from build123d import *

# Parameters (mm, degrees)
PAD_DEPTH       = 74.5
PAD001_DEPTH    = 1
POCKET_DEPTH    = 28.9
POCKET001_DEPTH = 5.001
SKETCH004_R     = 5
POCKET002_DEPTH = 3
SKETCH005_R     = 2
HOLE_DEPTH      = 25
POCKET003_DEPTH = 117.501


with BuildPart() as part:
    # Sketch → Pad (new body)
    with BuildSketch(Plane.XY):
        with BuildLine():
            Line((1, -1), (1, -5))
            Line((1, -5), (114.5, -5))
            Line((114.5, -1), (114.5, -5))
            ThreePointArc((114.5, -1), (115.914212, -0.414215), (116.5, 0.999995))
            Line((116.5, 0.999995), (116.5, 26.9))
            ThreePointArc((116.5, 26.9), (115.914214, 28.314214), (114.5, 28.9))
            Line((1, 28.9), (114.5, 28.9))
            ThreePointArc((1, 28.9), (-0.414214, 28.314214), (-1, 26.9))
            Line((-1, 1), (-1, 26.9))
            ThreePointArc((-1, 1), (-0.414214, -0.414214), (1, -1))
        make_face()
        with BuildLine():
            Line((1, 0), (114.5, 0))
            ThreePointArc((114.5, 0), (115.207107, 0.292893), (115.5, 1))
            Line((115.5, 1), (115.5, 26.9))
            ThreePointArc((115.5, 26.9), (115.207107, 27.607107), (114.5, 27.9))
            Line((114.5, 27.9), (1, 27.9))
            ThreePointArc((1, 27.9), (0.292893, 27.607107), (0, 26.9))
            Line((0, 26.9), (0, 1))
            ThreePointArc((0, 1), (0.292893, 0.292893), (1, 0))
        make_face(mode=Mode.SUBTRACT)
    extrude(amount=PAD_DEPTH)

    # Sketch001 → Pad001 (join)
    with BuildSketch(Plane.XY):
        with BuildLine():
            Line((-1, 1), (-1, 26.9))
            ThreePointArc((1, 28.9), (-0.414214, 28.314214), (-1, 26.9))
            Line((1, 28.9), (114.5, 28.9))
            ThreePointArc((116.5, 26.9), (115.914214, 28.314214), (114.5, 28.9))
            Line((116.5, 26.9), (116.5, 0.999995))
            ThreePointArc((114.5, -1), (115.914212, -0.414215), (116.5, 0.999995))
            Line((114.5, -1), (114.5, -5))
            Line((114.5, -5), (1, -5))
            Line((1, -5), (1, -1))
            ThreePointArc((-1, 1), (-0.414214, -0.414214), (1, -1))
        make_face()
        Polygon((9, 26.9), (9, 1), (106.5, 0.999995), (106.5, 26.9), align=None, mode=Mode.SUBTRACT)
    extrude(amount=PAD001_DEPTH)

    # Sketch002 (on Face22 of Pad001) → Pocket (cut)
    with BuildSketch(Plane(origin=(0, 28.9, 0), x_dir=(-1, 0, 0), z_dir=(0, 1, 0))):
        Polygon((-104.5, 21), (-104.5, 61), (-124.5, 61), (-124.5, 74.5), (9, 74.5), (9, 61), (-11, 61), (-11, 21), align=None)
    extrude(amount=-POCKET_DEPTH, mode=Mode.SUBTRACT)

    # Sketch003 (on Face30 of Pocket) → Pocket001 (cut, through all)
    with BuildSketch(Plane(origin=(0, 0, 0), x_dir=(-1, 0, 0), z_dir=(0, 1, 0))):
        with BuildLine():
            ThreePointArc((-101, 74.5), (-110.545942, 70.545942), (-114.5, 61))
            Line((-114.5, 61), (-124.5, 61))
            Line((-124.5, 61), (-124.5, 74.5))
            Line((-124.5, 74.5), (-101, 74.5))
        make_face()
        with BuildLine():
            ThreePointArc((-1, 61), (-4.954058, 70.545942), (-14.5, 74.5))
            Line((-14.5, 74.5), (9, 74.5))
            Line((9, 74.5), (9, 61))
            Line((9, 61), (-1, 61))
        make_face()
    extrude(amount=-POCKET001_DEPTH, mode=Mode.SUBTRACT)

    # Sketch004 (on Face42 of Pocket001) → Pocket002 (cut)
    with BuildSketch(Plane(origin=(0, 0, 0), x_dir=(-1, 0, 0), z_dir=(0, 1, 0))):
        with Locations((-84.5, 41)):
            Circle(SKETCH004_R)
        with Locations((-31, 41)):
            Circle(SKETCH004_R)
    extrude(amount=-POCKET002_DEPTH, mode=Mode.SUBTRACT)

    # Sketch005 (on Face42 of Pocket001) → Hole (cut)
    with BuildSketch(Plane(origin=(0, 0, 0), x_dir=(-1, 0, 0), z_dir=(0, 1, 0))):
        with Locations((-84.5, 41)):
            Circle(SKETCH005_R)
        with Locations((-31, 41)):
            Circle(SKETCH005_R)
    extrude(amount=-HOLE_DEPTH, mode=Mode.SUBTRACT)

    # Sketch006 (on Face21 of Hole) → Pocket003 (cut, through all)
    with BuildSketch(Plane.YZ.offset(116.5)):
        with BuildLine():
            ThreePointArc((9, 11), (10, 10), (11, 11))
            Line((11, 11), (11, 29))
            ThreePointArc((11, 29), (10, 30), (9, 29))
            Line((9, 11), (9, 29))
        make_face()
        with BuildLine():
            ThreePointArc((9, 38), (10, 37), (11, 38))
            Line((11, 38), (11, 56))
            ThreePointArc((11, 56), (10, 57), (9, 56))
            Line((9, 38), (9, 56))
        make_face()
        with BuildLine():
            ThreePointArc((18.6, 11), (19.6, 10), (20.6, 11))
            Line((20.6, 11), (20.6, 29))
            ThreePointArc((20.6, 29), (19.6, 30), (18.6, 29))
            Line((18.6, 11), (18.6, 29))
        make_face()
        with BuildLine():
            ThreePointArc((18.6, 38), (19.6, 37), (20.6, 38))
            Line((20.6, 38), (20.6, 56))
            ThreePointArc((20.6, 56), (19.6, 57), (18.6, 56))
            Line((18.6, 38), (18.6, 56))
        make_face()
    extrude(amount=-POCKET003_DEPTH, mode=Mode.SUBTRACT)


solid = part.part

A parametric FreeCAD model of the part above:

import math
import FreeCAD as App
import Part
import Sketcher

V = App.Vector
Q = App.Units.Quantity


def add_polygon(sketch, points):
    """Adds a closed chain of lines whose ends are joined by coincident constraints."""
    first, n = sketch.GeometryCount, len(points)
    for a, b in zip(points, points[1:] + points[:1]):
        sketch.addGeometry(Part.LineSegment(App.Vector(*a, 0), App.Vector(*b, 0)), False)
    for i in range(n):
        sketch.addConstraint(Sketcher.Constraint("Coincident", first + i, 2, first + (i + 1) % n, 1))

doc = App.newDocument("Part")
body = doc.addObject("PartDesign::Body", "Body")

# Sketch on XY plane
sketch1 = body.newObject("Sketcher::SketchObject", "Sketch")
sketch1.AttachmentSupport = (doc.getObject("XY_Plane"), [""])
sketch1.MapMode = "FlatFace"
sketch1.addGeometry(Part.LineSegment(V(1, -1, 0), V(1, -5, 0)), False)
sketch1.addGeometry(Part.LineSegment(V(1, -5, 0), V(114.5, -5, 0)), False)
sketch1.addGeometry(Part.LineSegment(V(114.5, -5, 0), V(114.5, -1, 0)), False)
sketch1.addGeometry(Part.ArcOfCircle(Part.Circle(V(114.5, 1, 0), V(0, 0, 1), 2), math.radians(-90), math.radians(0)), False)
sketch1.addGeometry(Part.LineSegment(V(116.5, 1, 0), V(116.5, 26.9, 0)), False)
sketch1.addGeometry(Part.ArcOfCircle(Part.Circle(V(114.5, 26.9, 0), V(0, 0, 1), 2), math.radians(0), math.radians(90)), False)
sketch1.addGeometry(Part.LineSegment(V(114.5, 28.9, 0), V(1, 28.9, 0)), False)
sketch1.addGeometry(Part.ArcOfCircle(Part.Circle(V(1, 26.9, 0), V(0, 0, 1), 2), math.radians(90), math.radians(180)), False)
sketch1.addGeometry(Part.LineSegment(V(-1, 26.9, 0), V(-1, 1, 0)), False)
sketch1.addGeometry(Part.ArcOfCircle(Part.Circle(V(1, 1, 0), V(0, 0, 1), 2), math.radians(180), math.radians(270)), False)
sketch1.addGeometry(Part.LineSegment(V(114.5, 0, 0), V(1, 0, 0)), False)
sketch1.addGeometry(Part.ArcOfCircle(Part.Circle(V(1, 1, 0), V(0, 0, 1), 1), math.radians(180), math.radians(270)), False)
sketch1.addGeometry(Part.LineSegment(V(0, 1, 0), V(0, 26.9, 0)), False)
sketch1.addGeometry(Part.ArcOfCircle(Part.Circle(V(1, 26.9, 0), V(0, 0, 1), 1), math.radians(90), math.radians(180)), False)
sketch1.addGeometry(Part.LineSegment(V(1, 27.9, 0), V(114.5, 27.9, 0)), False)
sketch1.addGeometry(Part.ArcOfCircle(Part.Circle(V(114.5, 26.9, 0), V(0, 0, 1), 1), math.radians(0), math.radians(90)), False)
sketch1.addGeometry(Part.LineSegment(V(115.5, 26.9, 0), V(115.5, 1, 0)), False)
sketch1.addGeometry(Part.ArcOfCircle(Part.Circle(V(114.5, 1, 0), V(0, 0, 1), 1), math.radians(-90), math.radians(0)), False)
sketch1.addConstraint(Sketcher.Constraint("Coincident", 0, 2, 1, 1))
sketch1.addConstraint(Sketcher.Constraint("Coincident", 1, 2, 2, 1))
sketch1.addConstraint(Sketcher.Constraint("Coincident", 2, 2, 3, 1))
sketch1.addConstraint(Sketcher.Constraint("Coincident", 3, 2, 4, 1))
sketch1.addConstraint(Sketcher.Constraint("Tangent", 4, 2, 5, 1))
sketch1.addConstraint(Sketcher.Constraint("Tangent", 5, 2, 6, 1))
sketch1.addConstraint(Sketcher.Constraint("Tangent", 6, 2, 7, 1))
sketch1.addConstraint(Sketcher.Constraint("Tangent", 7, 2, 8, 1))
sketch1.addConstraint(Sketcher.Constraint("Tangent", 8, 2, 9, 1))
sketch1.addConstraint(Sketcher.Constraint("Coincident", 9, 2, 0, 1))
sketch1.addConstraint(Sketcher.Constraint("Tangent", 10, 2, 11, 2))
sketch1.addConstraint(Sketcher.Constraint("Tangent", 11, 1, 12, 1))
sketch1.addConstraint(Sketcher.Constraint("Tangent", 12, 2, 13, 2))
sketch1.addConstraint(Sketcher.Constraint("Tangent", 13, 1, 14, 1))
sketch1.addConstraint(Sketcher.Constraint("Tangent", 14, 2, 15, 2))
sketch1.addConstraint(Sketcher.Constraint("Tangent", 15, 1, 16, 1))
sketch1.addConstraint(Sketcher.Constraint("Tangent", 16, 2, 17, 2))
sketch1.addConstraint(Sketcher.Constraint("Tangent", 17, 1, 10, 1))
sketch1.addConstraint(Sketcher.Constraint("Vertical", 0))
sketch1.addConstraint(Sketcher.Constraint("Horizontal", 1))
sketch1.addConstraint(Sketcher.Constraint("Vertical", 2))
sketch1.addConstraint(Sketcher.Constraint("Vertical", 4))
sketch1.addConstraint(Sketcher.Constraint("Horizontal", 6))
sketch1.addConstraint(Sketcher.Constraint("Vertical", 8))
sketch1.addConstraint(Sketcher.Constraint("Horizontal", 10))
sketch1.addConstraint(Sketcher.Constraint("Vertical", 12))
sketch1.addConstraint(Sketcher.Constraint("Horizontal", 14))
sketch1.addConstraint(Sketcher.Constraint("Vertical", 16))
sketch1.addConstraint(Sketcher.Constraint("Coincident", 11, 3, 9, 3))
sketch1.addConstraint(Sketcher.Constraint("Coincident", 13, 3, 7, 3))
sketch1.addConstraint(Sketcher.Constraint("Coincident", 15, 3, 5, 3))
sketch1.addConstraint(Sketcher.Constraint("Coincident", 17, 3, 3, 3))
sketch1.addConstraint(Sketcher.Constraint("Equal", 3, 5))
sketch1.addConstraint(Sketcher.Constraint("Equal", 5, 7))
sketch1.addConstraint(Sketcher.Constraint("Equal", 7, 9))
sketch1.addConstraint(Sketcher.Constraint("Symmetric", 8, 2, 9, 2, -1, 1))
sketch1.addConstraint(Sketcher.Constraint("PointOnObject", 10, 2, -1))
sketch1.addConstraint(Sketcher.Constraint("PointOnObject", 11, 1, -2))
sketch1.addConstraint(Sketcher.Constraint("Vertical", 17, 3, 1, 2))
sketch1.addConstraint(Sketcher.Constraint("Radius", 3, Q("2 mm")))
sketch1.addConstraint(Sketcher.Constraint("DistanceY", 0, 2, 0, 1, Q("4 mm")))
sketch1.addConstraint(Sketcher.Constraint("DistanceX", 1, 1, 1, 2, Q("113.5 mm")))
sketch1.addConstraint(Sketcher.Constraint("DistanceY", 8, 2, 8, 1, Q("25.9 mm")))
sketch1.addConstraint(Sketcher.Constraint("DistanceY", 4, 1, 4, 2, Q("25.900005 mm")))
pad1 = body.newObject("PartDesign::Pad", "Pad")
pad1.Profile = sketch1
pad1.Length = 74.5

# Sketch on XY plane
sketch2 = body.newObject("Sketcher::SketchObject", "Sketch001")
sketch2.AttachmentSupport = (doc.getObject("XY_Plane"), [""])
sketch2.MapMode = "FlatFace"
sketch2.addGeometry(Part.LineSegment(V(-1, 26.9, 0), V(-1, 1, 0)), False)  # 0
sketch2.addGeometry(Part.ArcOfCircle(Part.Circle(V(1, 1, 0), V(0, 0, 1), 2), math.radians(180), math.radians(270)), False)  # 1
sketch2.addGeometry(Part.LineSegment(V(1, -1, 0), V(1, -5, 0)), False)  # 2
sketch2.addGeometry(Part.LineSegment(V(1, -5, 0), V(114.5, -5, 0)), False)  # 3
sketch2.addGeometry(Part.LineSegment(V(114.5, -5, 0), V(114.5, -1, 0)), False)  # 4
sketch2.addGeometry(Part.ArcOfCircle(Part.Circle(V(114.5, 1, 0), V(0, 0, 1), 2), math.radians(-90), math.radians(0)), False)  # 5
sketch2.addGeometry(Part.LineSegment(V(116.5, 1, 0), V(116.5, 26.9, 0)), False)  # 6
sketch2.addGeometry(Part.ArcOfCircle(Part.Circle(V(114.5, 26.9, 0), V(0, 0, 1), 2), math.radians(0), math.radians(90)), False)  # 7
sketch2.addGeometry(Part.LineSegment(V(114.5, 28.9, 0), V(1, 28.9, 0)), False)  # 8
sketch2.addGeometry(Part.ArcOfCircle(Part.Circle(V(1, 26.9, 0), V(0, 0, 1), 2), math.radians(90), math.radians(180)), False)  # 9
add_polygon(sketch2, [(9, 26.9), (106.5, 26.9), (106.5, 1), (9, 1)])  # lines 10-13
sketch2.addConstraint(Sketcher.Constraint("Tangent", 0, 2, 1, 1))
sketch2.addConstraint(Sketcher.Constraint("Coincident", 1, 2, 2, 1))
sketch2.addConstraint(Sketcher.Constraint("Coincident", 2, 2, 3, 1))
sketch2.addConstraint(Sketcher.Constraint("Coincident", 3, 2, 4, 1))
sketch2.addConstraint(Sketcher.Constraint("Coincident", 4, 2, 5, 1))
sketch2.addConstraint(Sketcher.Constraint("Coincident", 5, 2, 6, 1))
sketch2.addConstraint(Sketcher.Constraint("Tangent", 6, 2, 7, 1))
sketch2.addConstraint(Sketcher.Constraint("Tangent", 7, 2, 8, 1))
sketch2.addConstraint(Sketcher.Constraint("Tangent", 8, 2, 9, 1))
sketch2.addConstraint(Sketcher.Constraint("Tangent", 9, 2, 0, 1))
sketch2.addConstraint(Sketcher.Constraint("Vertical", 0))
sketch2.addConstraint(Sketcher.Constraint("Vertical", 2))
sketch2.addConstraint(Sketcher.Constraint("Horizontal", 3))
sketch2.addConstraint(Sketcher.Constraint("Vertical", 4))
sketch2.addConstraint(Sketcher.Constraint("Vertical", 6))
sketch2.addConstraint(Sketcher.Constraint("Horizontal", 8))
sketch2.addConstraint(Sketcher.Constraint("Horizontal", 10))
sketch2.addConstraint(Sketcher.Constraint("Vertical", 11))
sketch2.addConstraint(Sketcher.Constraint("Vertical", 13))
sketch2.addConstraint(Sketcher.Constraint("Equal", 1, 5))
sketch2.addConstraint(Sketcher.Constraint("Equal", 5, 7))
sketch2.addConstraint(Sketcher.Constraint("Equal", 7, 9))
sketch2.addConstraint(Sketcher.Constraint("Symmetric", 0, 2, 1, 2, -1, 1))
sketch2.addConstraint(Sketcher.Constraint("Horizontal", 1, 3, 5, 3))
sketch2.addConstraint(Sketcher.Constraint("Horizontal", 9, 2, 10, 2))
sketch2.addConstraint(Sketcher.Constraint("Horizontal", 5, 2, 11, 2))
sketch2.addConstraint(Sketcher.Constraint("Horizontal", 0, 2, 12, 2))
sketch2.addConstraint(Sketcher.Constraint("Vertical", 9, 3, 1, 2))
sketch2.addConstraint(Sketcher.Constraint("Vertical", 7, 3, 3, 2))
sketch2.addConstraint(Sketcher.Constraint("Radius", 1, Q("1.999999 mm")))
sketch2.addConstraint(Sketcher.Constraint("DistanceY", 2, 2, 2, 1, Q("4 mm")))
sketch2.addConstraint(Sketcher.Constraint("Angle", 12, Q("179.999997 deg")))
sketch2.addConstraint(Sketcher.Constraint("DistanceX", 3, 1, 3, 2, Q("113.5 mm")))
sketch2.addConstraint(Sketcher.Constraint("DistanceX", 10, 1, 10, 2, Q("97.5 mm")))
sketch2.addConstraint(Sketcher.Constraint("DistanceY", 0, 2, 0, 1, Q("25.9 mm")))
sketch2.addConstraint(Sketcher.Constraint("DistanceX", -1, 1, 12, 2, Q("9 mm")))
pad2 = body.newObject("PartDesign::Pad", "Pad001")
pad2.Profile = sketch2
pad2.Length = 1

# Sketch on XZ plane
sketch3 = body.newObject("Sketcher::SketchObject", "Sketch002")
sketch3.AttachmentSupport = (doc.getObject("XZ_Plane"), [""])
sketch3.MapMode = "FlatFace"
sketch3.AttachmentOffset = App.Placement(V(0, 0, -28.9), App.Rotation())
add_polygon(sketch3, [(104, 61), (104, 21), (11, 21), (11, 61), (-9, 61), (-9, 74), (124, 74), (124, 61)])  # lines 0-7
sketch3.addConstraint(Sketcher.Constraint("Vertical", 0))
sketch3.addConstraint(Sketcher.Constraint("Horizontal", 1))
sketch3.addConstraint(Sketcher.Constraint("Vertical", 2))
sketch3.addConstraint(Sketcher.Constraint("Horizontal", 3))
sketch3.addConstraint(Sketcher.Constraint("Vertical", 4))
sketch3.addConstraint(Sketcher.Constraint("Horizontal", 5))
sketch3.addConstraint(Sketcher.Constraint("Vertical", 6))
sketch3.addConstraint(Sketcher.Constraint("Horizontal", 7))
sketch3.addConstraint(Sketcher.Constraint("Horizontal", 3, 2, 6, 2))
sketch3.addConstraint(Sketcher.Constraint("Equal", 3, 7))
sketch3.addConstraint(Sketcher.Constraint("DistanceX", 3, 2, 3, 1, Q("20 mm")))
sketch3.addConstraint(Sketcher.Constraint("DistanceY", 0, 2, 0, 1, Q("40 mm")))
sketch3.addConstraint(Sketcher.Constraint("DistanceX", 1, 2, 1, 1, Q("93.5 mm")))
sketch3.addConstraint(Sketcher.Constraint("DistanceY", 4, 1, 4, 2, Q("13.5 mm")))
sketch3.addConstraint(Sketcher.Constraint("DistanceY", -1, 1, 0, 2, Q("21 mm")))
sketch3.addConstraint(Sketcher.Constraint("DistanceX", -1, 1, 1, 2, Q("11 mm")))
pocket1 = body.newObject("PartDesign::Pocket", "Pocket")
pocket1.Profile = sketch3
pocket1.Length = 28.9
pocket1.Reversed = True

# Sketch on XZ plane
sketch4 = body.newObject("Sketcher::SketchObject", "Sketch003")
sketch4.AttachmentSupport = (doc.getObject("XZ_Plane"), [""])
sketch4.MapMode = "FlatFace"
sketch4.addGeometry(Part.ArcOfCircle(Part.Circle(V(101, 61, 0), V(0, 0, 1), 13), math.radians(0), math.radians(90)), False)
sketch4.addGeometry(Part.LineSegment(V(101, 74, 0), V(124, 74, 0)), False)
sketch4.addGeometry(Part.LineSegment(V(124, 74, 0), V(124, 61, 0)), False)
sketch4.addGeometry(Part.LineSegment(V(124, 61, 0), V(114, 61, 0)), False)
sketch4.addGeometry(Part.ArcOfCircle(Part.Circle(V(14, 61, 0), V(0, 0, 1), 13), math.radians(90), math.radians(180)), False)
sketch4.addGeometry(Part.LineSegment(V(1, 61, 0), V(-9, 61, 0)), False)
sketch4.addGeometry(Part.LineSegment(V(-9, 61, 0), V(-9, 74, 0)), False)
sketch4.addGeometry(Part.LineSegment(V(-9, 74, 0), V(14, 74, 0)), False)
sketch4.addConstraint(Sketcher.Constraint("Tangent", 0, 2, 1, 1))
sketch4.addConstraint(Sketcher.Constraint("Coincident", 1, 2, 2, 1))
sketch4.addConstraint(Sketcher.Constraint("Coincident", 2, 2, 3, 1))
sketch4.addConstraint(Sketcher.Constraint("Coincident", 3, 2, 0, 1))
sketch4.addConstraint(Sketcher.Constraint("Coincident", 4, 2, 5, 1))
sketch4.addConstraint(Sketcher.Constraint("Coincident", 5, 2, 6, 1))
sketch4.addConstraint(Sketcher.Constraint("Coincident", 6, 2, 7, 1))
sketch4.addConstraint(Sketcher.Constraint("Tangent", 7, 2, 4, 1))
sketch4.addConstraint(Sketcher.Constraint("Horizontal", 1))
sketch4.addConstraint(Sketcher.Constraint("Vertical", 2))
sketch4.addConstraint(Sketcher.Constraint("Horizontal", 3))
sketch4.addConstraint(Sketcher.Constraint("Horizontal", 5))
sketch4.addConstraint(Sketcher.Constraint("Vertical", 6))
sketch4.addConstraint(Sketcher.Constraint("Horizontal", 7))
sketch4.addConstraint(Sketcher.Constraint("Equal", 0, 4))
sketch4.addConstraint(Sketcher.Constraint("Horizontal", 0, 3, 4, 3))
sketch4.addConstraint(Sketcher.Constraint("Horizontal", 4, 3, 2, 2))
sketch4.addConstraint(Sketcher.Constraint("Horizontal", 3, 2, 4, 2))
sketch4.addConstraint(Sketcher.Constraint("Equal", 3, 5))
sketch4.addConstraint(Sketcher.Constraint("Radius", 0, Q("13.499998 mm")))
sketch4.addConstraint(Sketcher.Constraint("DistanceX", 3, 2, 3, 1, Q("10 mm")))
sketch4.addConstraint(Sketcher.Constraint("DistanceX", -1, 1, 0, 3, Q("101.000002 mm")))
sketch4.addConstraint(Sketcher.Constraint("DistanceY", -1, 1, 0, 3, Q("61.000002 mm")))
sketch4.addConstraint(Sketcher.Constraint("DistanceX", -1, 1, 4, 2, Q("1 mm")))
pocket2 = body.newObject("PartDesign::Pocket", "Pocket001")
pocket2.Profile = sketch4
pocket2.Type = "ThroughAll"
pocket2.Reversed = True

# Sketch on XZ plane
sketch5 = body.newObject("Sketcher::SketchObject", "Sketch004")
sketch5.AttachmentSupport = (doc.getObject("XZ_Plane"), [""])
sketch5.MapMode = "FlatFace"
sketch5.addGeometry(Part.Circle(V(84, 41, 0), V(0, 0, 1), 5), False)
sketch5.addGeometry(Part.Circle(V(31, 41, 0), V(0, 0, 1), 5), False)
sketch5.addConstraint(Sketcher.Constraint("Equal", 0, 1))
sketch5.addConstraint(Sketcher.Constraint("Horizontal", 0, 3, 1, 3))
sketch5.addConstraint(Sketcher.Constraint("Diameter", 0, Q("10 mm")))
sketch5.addConstraint(Sketcher.Constraint("DistanceY", -1, 1, 0, 3, Q("41 mm")))
sketch5.addConstraint(Sketcher.Constraint("DistanceX", -1, 1, 1, 3, Q("31 mm")))
sketch5.addConstraint(Sketcher.Constraint("DistanceX", -1, 1, 0, 3, Q("84.5 mm")))
pocket3 = body.newObject("PartDesign::Pocket", "Pocket002")
pocket3.Profile = sketch5
pocket3.Length = 3
pocket3.Reversed = True

# Sketch on XZ plane
sketch6 = body.newObject("Sketcher::SketchObject", "Sketch005")
sketch6.AttachmentSupport = (doc.getObject("XZ_Plane"), [""])
sketch6.MapMode = "FlatFace"
sketch6.addGeometry(Part.Circle(V(84.5, 41, 0), V(0, 0, 1), 2), False)
sketch6.addGeometry(Part.Circle(V(31, 41, 0), V(0, 0, 1), 2), False)
sketch6.addConstraint(Sketcher.Constraint("Equal", 0, 1))
sketch6.addConstraint(Sketcher.Constraint("Horizontal", 0, 3, 1, 3))
sketch6.addConstraint(Sketcher.Constraint("Diameter", 0, Q("4 mm")))
sketch6.addConstraint(Sketcher.Constraint("DistanceY", -1, 1, 0, 3, Q("41 mm")))
sketch6.addConstraint(Sketcher.Constraint("DistanceX", -1, 1, 1, 3, Q("31 mm")))
sketch6.addConstraint(Sketcher.Constraint("DistanceX", -1, 1, 0, 3, Q("84.5 mm")))
pocket4 = body.newObject("PartDesign::Pocket", "Pocket003")
pocket4.Profile = sketch6
pocket4.Length = 25
pocket4.Reversed = True

# Sketch on YZ plane
sketch7 = body.newObject("Sketcher::SketchObject", "Sketch006")
sketch7.AttachmentSupport = (doc.getObject("YZ_Plane"), [""])
sketch7.MapMode = "FlatFace"
sketch7.AttachmentOffset = App.Placement(V(0, 0, 116.5), App.Rotation())
sketch7.addGeometry(Part.ArcOfCircle(Part.Circle(V(10, 11, 0), V(0, 0, 1), 1), math.radians(180), math.radians(360)), False)
sketch7.addGeometry(Part.LineSegment(V(11, 11, 0), V(11, 29, 0)), False)
sketch7.addGeometry(Part.ArcOfCircle(Part.Circle(V(10, 29, 0), V(0, 0, 1), 1), math.radians(0), math.radians(180)), False)
sketch7.addGeometry(Part.LineSegment(V(9, 29, 0), V(9, 11, 0)), False)
sketch7.addGeometry(Part.ArcOfCircle(Part.Circle(V(10, 38, 0), V(0, 0, 1), 1), math.radians(180), math.radians(360)), False)
sketch7.addGeometry(Part.LineSegment(V(11, 38, 0), V(11, 56, 0)), False)
sketch7.addGeometry(Part.ArcOfCircle(Part.Circle(V(10, 56, 0), V(0, 0, 1), 1), math.radians(0), math.radians(180)), False)
sketch7.addGeometry(Part.LineSegment(V(9, 56, 0), V(9, 38, 0)), False)
sketch7.addGeometry(Part.ArcOfCircle(Part.Circle(V(19.6, 11, 0), V(0, 0, 1), 1), math.radians(180), math.radians(360)), False)
sketch7.addGeometry(Part.LineSegment(V(20.6, 11, 0), V(20.6, 29, 0)), False)
sketch7.addGeometry(Part.ArcOfCircle(Part.Circle(V(19.6, 29, 0), V(0, 0, 1), 1), math.radians(0), math.radians(180)), False)
sketch7.addGeometry(Part.LineSegment(V(18.6, 29, 0), V(18.6, 11, 0)), False)
sketch7.addGeometry(Part.ArcOfCircle(Part.Circle(V(19.6, 38, 0), V(0, 0, 1), 1), math.radians(180), math.radians(360)), False)
sketch7.addGeometry(Part.LineSegment(V(20.6, 38, 0), V(20.6, 56, 0)), False)
sketch7.addGeometry(Part.ArcOfCircle(Part.Circle(V(19.6, 56, 0), V(0, 0, 1), 1), math.radians(0), math.radians(180)), False)
sketch7.addGeometry(Part.LineSegment(V(18.6, 56, 0), V(18.6, 38, 0)), False)
sketch7.addConstraint(Sketcher.Constraint("Tangent", 0, 2, 1, 1))
sketch7.addConstraint(Sketcher.Constraint("Tangent", 1, 2, 2, 1))
sketch7.addConstraint(Sketcher.Constraint("Tangent", 2, 2, 3, 1))
sketch7.addConstraint(Sketcher.Constraint("Tangent", 3, 2, 0, 1))
sketch7.addConstraint(Sketcher.Constraint("Tangent", 4, 2, 5, 1))
sketch7.addConstraint(Sketcher.Constraint("Tangent", 5, 2, 6, 1))
sketch7.addConstraint(Sketcher.Constraint("Tangent", 6, 2, 7, 1))
sketch7.addConstraint(Sketcher.Constraint("Tangent", 7, 2, 4, 1))
sketch7.addConstraint(Sketcher.Constraint("Tangent", 8, 2, 9, 1))
sketch7.addConstraint(Sketcher.Constraint("Tangent", 9, 2, 10, 1))
sketch7.addConstraint(Sketcher.Constraint("Tangent", 10, 2, 11, 1))
sketch7.addConstraint(Sketcher.Constraint("Tangent", 11, 2, 8, 1))
sketch7.addConstraint(Sketcher.Constraint("Tangent", 12, 2, 13, 1))
sketch7.addConstraint(Sketcher.Constraint("Tangent", 13, 2, 14, 1))
sketch7.addConstraint(Sketcher.Constraint("Tangent", 14, 2, 15, 1))
sketch7.addConstraint(Sketcher.Constraint("Tangent", 15, 2, 12, 1))
sketch7.addConstraint(Sketcher.Constraint("Vertical", 1))
sketch7.addConstraint(Sketcher.Constraint("Vertical", 3))
sketch7.addConstraint(Sketcher.Constraint("Vertical", 5))
sketch7.addConstraint(Sketcher.Constraint("Vertical", 7))
sketch7.addConstraint(Sketcher.Constraint("Vertical", 9))
sketch7.addConstraint(Sketcher.Constraint("Vertical", 11))
sketch7.addConstraint(Sketcher.Constraint("Vertical", 13))
sketch7.addConstraint(Sketcher.Constraint("Vertical", 15))
sketch7.addConstraint(Sketcher.Constraint("Equal", 2, 4))
sketch7.addConstraint(Sketcher.Constraint("Equal", 6, 8))
sketch7.addConstraint(Sketcher.Constraint("Equal", 10, 12))
sketch7.addConstraint(Sketcher.Constraint("Horizontal", 0, 3, 8, 3))
sketch7.addConstraint(Sketcher.Constraint("Horizontal", 2, 3, 10, 3))
sketch7.addConstraint(Sketcher.Constraint("Horizontal", 4, 3, 12, 3))
sketch7.addConstraint(Sketcher.Constraint("Horizontal", 6, 3, 14, 3))
sketch7.addConstraint(Sketcher.Constraint("Vertical", 2, 3, 4, 3))
sketch7.addConstraint(Sketcher.Constraint("Vertical", 10, 3, 12, 3))
sketch7.addConstraint(Sketcher.Constraint("Equal", 3, 5))
sketch7.addConstraint(Sketcher.Constraint("Radius", 0, Q("1 mm")))
sketch7.addConstraint(Sketcher.Constraint("DistanceY", 1, 1, 1, 2, Q("18 mm")))
sketch7.addConstraint(Sketcher.Constraint("DistanceX", -1, 1, 0, 3, Q("10 mm")))
sketch7.addConstraint(Sketcher.Constraint("DistanceY", -1, 1, 0, 3, Q("11 mm")))
sketch7.addConstraint(Sketcher.Constraint("DistanceY", -1, 1, 4, 3, Q("38 mm")))
sketch7.addConstraint(Sketcher.Constraint("DistanceX", -1, 1, 8, 3, Q("19.6 mm")))
pocket5 = body.newObject("PartDesign::Pocket", "Pocket004")
pocket5.Profile = sketch7
pocket5.Type = "ThroughAll"

doc.recompute()
